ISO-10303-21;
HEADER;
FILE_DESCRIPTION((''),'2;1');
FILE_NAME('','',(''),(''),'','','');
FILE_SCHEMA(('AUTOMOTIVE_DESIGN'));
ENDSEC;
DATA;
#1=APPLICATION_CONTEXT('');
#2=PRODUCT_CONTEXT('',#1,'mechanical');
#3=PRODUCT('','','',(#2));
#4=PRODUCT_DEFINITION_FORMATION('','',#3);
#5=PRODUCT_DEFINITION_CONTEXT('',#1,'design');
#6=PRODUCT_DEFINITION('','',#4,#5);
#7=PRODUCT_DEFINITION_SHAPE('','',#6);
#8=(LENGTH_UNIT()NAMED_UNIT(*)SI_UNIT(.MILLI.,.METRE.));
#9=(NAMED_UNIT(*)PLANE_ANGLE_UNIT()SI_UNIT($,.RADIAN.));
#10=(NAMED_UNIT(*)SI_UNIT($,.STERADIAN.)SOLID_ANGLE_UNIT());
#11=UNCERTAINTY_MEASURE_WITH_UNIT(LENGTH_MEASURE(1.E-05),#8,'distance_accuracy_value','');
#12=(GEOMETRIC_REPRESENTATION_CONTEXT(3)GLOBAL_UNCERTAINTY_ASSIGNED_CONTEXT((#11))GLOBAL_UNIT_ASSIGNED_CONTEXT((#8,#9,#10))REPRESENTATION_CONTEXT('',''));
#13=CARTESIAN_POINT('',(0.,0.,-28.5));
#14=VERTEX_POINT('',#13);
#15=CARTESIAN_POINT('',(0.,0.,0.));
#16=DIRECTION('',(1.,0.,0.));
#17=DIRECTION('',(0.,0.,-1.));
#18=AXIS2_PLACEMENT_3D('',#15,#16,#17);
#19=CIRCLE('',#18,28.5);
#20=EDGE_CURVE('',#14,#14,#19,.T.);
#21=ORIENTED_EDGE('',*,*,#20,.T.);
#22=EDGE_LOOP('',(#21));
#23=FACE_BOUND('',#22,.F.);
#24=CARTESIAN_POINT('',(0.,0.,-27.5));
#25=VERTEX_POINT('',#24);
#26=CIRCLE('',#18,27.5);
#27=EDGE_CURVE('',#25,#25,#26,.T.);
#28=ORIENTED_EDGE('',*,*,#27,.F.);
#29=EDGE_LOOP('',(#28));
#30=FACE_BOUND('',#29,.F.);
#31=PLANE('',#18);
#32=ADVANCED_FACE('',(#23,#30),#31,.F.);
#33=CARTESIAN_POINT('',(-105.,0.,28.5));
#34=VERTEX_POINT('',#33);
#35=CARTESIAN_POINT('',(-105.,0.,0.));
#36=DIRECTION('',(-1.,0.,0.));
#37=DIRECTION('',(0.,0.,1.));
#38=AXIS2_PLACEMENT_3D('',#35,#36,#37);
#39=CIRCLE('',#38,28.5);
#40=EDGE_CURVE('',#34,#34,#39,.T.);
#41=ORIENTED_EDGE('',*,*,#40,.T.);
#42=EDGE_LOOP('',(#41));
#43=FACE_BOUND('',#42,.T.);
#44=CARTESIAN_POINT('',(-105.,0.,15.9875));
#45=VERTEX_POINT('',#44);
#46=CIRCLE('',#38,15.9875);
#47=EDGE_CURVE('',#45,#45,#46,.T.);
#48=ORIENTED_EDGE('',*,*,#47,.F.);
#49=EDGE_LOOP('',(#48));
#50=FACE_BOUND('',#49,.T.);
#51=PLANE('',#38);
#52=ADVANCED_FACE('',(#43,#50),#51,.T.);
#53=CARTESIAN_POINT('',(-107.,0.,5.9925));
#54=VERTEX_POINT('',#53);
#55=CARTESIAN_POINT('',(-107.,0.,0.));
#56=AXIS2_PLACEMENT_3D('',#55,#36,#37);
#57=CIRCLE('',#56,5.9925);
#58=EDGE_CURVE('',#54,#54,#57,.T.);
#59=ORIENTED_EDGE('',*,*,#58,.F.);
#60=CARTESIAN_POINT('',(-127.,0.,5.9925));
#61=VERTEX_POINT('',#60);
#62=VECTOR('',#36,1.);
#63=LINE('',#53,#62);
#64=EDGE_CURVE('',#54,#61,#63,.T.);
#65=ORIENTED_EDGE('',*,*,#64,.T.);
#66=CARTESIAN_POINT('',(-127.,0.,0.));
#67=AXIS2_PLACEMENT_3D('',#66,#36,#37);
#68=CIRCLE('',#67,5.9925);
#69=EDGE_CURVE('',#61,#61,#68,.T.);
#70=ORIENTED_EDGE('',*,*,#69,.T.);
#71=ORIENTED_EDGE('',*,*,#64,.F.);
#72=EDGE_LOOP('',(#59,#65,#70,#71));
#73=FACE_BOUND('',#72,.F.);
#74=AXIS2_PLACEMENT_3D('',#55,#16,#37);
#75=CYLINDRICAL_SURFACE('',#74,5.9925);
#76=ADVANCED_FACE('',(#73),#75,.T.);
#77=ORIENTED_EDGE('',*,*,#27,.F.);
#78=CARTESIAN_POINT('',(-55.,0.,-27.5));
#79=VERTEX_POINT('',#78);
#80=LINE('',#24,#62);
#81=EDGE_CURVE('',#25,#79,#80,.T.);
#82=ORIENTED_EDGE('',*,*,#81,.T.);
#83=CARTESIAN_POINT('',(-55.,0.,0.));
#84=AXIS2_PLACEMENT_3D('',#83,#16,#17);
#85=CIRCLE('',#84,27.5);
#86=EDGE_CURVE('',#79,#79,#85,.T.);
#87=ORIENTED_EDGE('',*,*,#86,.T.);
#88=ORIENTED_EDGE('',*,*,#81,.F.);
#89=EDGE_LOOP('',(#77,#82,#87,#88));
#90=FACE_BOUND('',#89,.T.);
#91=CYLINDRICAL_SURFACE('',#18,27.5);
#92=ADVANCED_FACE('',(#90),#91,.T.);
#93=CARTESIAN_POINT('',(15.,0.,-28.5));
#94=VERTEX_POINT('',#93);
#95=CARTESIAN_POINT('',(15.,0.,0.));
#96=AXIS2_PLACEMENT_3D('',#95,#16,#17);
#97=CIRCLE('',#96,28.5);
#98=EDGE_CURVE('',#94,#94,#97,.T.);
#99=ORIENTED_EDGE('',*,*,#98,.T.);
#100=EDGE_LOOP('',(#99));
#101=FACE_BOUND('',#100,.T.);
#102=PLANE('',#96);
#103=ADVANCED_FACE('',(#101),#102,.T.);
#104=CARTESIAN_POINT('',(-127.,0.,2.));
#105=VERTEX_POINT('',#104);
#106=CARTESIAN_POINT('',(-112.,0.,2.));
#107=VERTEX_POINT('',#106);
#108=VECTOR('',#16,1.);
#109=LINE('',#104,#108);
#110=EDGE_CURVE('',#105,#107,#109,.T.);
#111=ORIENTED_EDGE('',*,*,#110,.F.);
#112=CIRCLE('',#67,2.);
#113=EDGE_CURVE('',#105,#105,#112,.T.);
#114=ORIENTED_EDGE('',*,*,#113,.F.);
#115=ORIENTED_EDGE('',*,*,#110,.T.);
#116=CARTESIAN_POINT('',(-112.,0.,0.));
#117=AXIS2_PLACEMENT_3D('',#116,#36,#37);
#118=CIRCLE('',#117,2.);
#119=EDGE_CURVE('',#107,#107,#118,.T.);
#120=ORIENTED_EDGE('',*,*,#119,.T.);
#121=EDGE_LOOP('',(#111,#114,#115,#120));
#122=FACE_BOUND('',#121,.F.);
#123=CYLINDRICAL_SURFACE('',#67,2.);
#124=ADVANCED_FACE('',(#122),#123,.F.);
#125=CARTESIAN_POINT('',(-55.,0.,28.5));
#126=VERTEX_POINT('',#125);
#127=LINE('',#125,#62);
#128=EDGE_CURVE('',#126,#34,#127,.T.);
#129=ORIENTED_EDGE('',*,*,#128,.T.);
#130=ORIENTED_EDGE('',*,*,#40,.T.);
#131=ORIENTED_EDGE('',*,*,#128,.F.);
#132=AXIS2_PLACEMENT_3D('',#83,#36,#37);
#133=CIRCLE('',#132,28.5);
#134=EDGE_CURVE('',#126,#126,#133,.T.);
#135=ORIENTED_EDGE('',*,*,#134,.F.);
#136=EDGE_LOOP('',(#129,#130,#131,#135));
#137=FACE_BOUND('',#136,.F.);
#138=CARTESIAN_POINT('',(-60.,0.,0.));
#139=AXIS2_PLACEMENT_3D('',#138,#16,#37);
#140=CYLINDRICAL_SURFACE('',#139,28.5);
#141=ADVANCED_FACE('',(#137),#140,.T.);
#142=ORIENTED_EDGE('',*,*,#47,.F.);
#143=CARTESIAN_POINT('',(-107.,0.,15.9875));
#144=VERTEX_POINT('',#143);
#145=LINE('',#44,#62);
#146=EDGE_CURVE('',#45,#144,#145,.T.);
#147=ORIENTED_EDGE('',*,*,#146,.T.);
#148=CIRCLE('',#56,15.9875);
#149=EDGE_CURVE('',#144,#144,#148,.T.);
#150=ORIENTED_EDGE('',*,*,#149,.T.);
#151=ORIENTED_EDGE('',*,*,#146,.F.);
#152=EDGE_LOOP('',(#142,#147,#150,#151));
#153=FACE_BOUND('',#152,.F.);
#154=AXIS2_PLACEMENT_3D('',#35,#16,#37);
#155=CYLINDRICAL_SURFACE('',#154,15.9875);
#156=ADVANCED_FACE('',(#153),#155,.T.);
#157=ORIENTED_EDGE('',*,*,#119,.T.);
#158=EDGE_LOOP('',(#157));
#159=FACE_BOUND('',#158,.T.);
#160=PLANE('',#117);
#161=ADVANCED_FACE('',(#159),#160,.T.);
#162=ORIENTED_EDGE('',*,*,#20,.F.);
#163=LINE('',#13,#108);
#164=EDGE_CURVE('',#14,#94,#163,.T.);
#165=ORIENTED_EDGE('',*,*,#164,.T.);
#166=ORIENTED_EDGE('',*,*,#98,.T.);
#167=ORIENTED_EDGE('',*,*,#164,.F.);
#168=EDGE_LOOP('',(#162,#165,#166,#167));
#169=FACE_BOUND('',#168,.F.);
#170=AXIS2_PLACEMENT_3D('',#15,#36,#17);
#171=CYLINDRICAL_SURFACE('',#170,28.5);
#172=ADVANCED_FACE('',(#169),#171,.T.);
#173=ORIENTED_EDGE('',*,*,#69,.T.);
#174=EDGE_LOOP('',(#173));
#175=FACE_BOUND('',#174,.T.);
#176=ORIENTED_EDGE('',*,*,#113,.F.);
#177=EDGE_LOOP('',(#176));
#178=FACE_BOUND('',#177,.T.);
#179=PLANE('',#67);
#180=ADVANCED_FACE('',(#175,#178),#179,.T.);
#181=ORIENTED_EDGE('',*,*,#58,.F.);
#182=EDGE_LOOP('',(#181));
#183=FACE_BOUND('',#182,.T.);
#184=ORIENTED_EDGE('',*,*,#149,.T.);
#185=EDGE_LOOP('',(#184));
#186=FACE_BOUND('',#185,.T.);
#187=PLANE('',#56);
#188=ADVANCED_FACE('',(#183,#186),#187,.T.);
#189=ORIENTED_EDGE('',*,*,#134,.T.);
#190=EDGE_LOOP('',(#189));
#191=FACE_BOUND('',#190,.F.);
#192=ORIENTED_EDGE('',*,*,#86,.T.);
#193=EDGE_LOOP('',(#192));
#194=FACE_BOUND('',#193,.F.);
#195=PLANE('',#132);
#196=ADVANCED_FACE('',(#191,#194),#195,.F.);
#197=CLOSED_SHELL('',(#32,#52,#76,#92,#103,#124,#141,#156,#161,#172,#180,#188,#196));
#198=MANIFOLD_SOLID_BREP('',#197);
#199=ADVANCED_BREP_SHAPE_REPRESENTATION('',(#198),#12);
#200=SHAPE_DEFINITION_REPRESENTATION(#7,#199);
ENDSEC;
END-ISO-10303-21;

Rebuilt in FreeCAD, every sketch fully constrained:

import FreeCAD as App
import Part
import Sketcher

V = App.Vector

doc = App.newDocument("Part")
body = doc.addObject("PartDesign::Body", "Body")

sketch1 = body.newObject("Sketcher::SketchObject", "Sketch")
sketch1.AttachmentSupport = (doc.getObject("YZ_Plane"), [""])
sketch1.MapMode = "FlatFace"
sketch1.addGeometry(Part.Circle(V(0, 0, 0), V(0, 0, 1), 28), False)
sketch1.addConstraint([
    Sketcher.Constraint("Coincident", 0, 3, -1, 1),
    Sketcher.Constraint("Diameter", 0, 57.0),
])
pad1 = body.newObject("PartDesign::Pad", "Pad")
pad1.Profile = sketch1
pad1.Length = 15

sketch2 = body.newObject("Sketcher::SketchObject", "Sketch001")
sketch2.AttachmentSupport = (doc.getObject("YZ_Plane"), [""])
sketch2.MapMode = "FlatFace"
sketch2.addGeometry(Part.Circle(V(0, 0, 0), V(0, 0, 1), 28), False)
sketch2.addConstraint([
    Sketcher.Constraint("Coincident", 0, 3, -1, 1),
    Sketcher.Constraint("Diameter", 0, 55.0),
])
pad2 = body.newObject("PartDesign::Pad", "Pad001")
pad2.Profile = sketch2
pad2.Length = 55
pad2.Reversed = True

sketch3 = body.newObject("Sketcher::SketchObject", "Sketch002")
sketch3.AttachmentSupport = (doc.getObject("YZ_Plane"), [""])
sketch3.MapMode = "FlatFace"
sketch3.AttachmentOffset = App.Placement(V(0, 0, -55), App.Rotation())
sketch3.addGeometry(Part.Circle(V(0, 0, 0), V(0, 0, 1), 28), False)
sketch3.addConstraint([
    Sketcher.Constraint("Coincident", 0, 3, -1, 1),
    Sketcher.Constraint("Diameter", 0, 57.0),
])
pad3 = body.newObject("PartDesign::Pad", "Pad002")
pad3.Profile = sketch3
pad3.Length = 5
pad3.Reversed = True

sketch4 = body.newObject("Sketcher::SketchObject", "Sketch003")
sketch4.AttachmentSupport = (doc.getObject("YZ_Plane"), [""])
sketch4.MapMode = "FlatFace"
sketch4.AttachmentOffset = App.Placement(V(0, 0, -60), App.Rotation())
sketch4.addGeometry(Part.Circle(V(0, 0, 0), V(0, 0, 1), 28), False)
sketch4.addConstraint([
    Sketcher.Constraint("Coincident", 0, 3, -1, 1),
    Sketcher.Constraint("Diameter", 0, 57.0),
])
pad4 = body.newObject("PartDesign::Pad", "Pad003")
pad4.Profile = sketch4
pad4.Length = 45
pad4.Reversed = True

sketch5 = body.newObject("Sketcher::SketchObject", "Sketch004")
sketch5.AttachmentSupport = (doc.getObject("YZ_Plane"), [""])
sketch5.MapMode = "FlatFace"
sketch5.AttachmentOffset = App.Placement(V(0, 0, -105), App.Rotation())
sketch5.addGeometry(Part.Circle(V(0, 0, 0), V(0, 0, 1), 16), False)
sketch5.addConstraint([
    Sketcher.Constraint("Coincident", 0, 3, -1, 1),
    Sketcher.Constraint("Diameter", 0, 31.975),
])
pad5 = body.newObject("PartDesign::Pad", "Pad004")
pad5.Profile = sketch5
pad5.Length = 2
pad5.Reversed = True

sketch6 = body.newObject("Sketcher::SketchObject", "Sketch005")
sketch6.AttachmentSupport = (doc.getObject("YZ_Plane"), [""])
sketch6.MapMode = "FlatFace"
sketch6.AttachmentOffset = App.Placement(V(0, 0, -107), App.Rotation())
sketch6.addGeometry(Part.Circle(V(0, 0, 0), V(0, 0, 1), 6), False)
sketch6.addConstraint([
    Sketcher.Constraint("Coincident", 0, 3, -1, 1),
    Sketcher.Constraint("Diameter", 0, 11.985),
])
pad6 = body.newObject("PartDesign::Pad", "Pad005")
pad6.Profile = sketch6
pad6.Length = 20
pad6.Reversed = True

sketch7 = body.newObject("Sketcher::SketchObject", "Sketch006")
sketch7.AttachmentSupport = (doc.getObject("YZ_Plane"), [""])
sketch7.MapMode = "FlatFace"
sketch7.AttachmentOffset = App.Placement(V(0, 0, -127), App.Rotation())
sketch7.addGeometry(Part.Circle(V(0, 0, 0), V(0, 0, 1), 2), False)
sketch7.addConstraint([
    Sketcher.Constraint("Coincident", 0, 3, -1, 1),
    Sketcher.Constraint("Diameter", 0, 4.0),
])
pocket1 = body.newObject("PartDesign::Pocket", "Pocket")
pocket1.Profile = sketch7
pocket1.Length = 15
pocket1.Reversed = True

doc.recompute()
